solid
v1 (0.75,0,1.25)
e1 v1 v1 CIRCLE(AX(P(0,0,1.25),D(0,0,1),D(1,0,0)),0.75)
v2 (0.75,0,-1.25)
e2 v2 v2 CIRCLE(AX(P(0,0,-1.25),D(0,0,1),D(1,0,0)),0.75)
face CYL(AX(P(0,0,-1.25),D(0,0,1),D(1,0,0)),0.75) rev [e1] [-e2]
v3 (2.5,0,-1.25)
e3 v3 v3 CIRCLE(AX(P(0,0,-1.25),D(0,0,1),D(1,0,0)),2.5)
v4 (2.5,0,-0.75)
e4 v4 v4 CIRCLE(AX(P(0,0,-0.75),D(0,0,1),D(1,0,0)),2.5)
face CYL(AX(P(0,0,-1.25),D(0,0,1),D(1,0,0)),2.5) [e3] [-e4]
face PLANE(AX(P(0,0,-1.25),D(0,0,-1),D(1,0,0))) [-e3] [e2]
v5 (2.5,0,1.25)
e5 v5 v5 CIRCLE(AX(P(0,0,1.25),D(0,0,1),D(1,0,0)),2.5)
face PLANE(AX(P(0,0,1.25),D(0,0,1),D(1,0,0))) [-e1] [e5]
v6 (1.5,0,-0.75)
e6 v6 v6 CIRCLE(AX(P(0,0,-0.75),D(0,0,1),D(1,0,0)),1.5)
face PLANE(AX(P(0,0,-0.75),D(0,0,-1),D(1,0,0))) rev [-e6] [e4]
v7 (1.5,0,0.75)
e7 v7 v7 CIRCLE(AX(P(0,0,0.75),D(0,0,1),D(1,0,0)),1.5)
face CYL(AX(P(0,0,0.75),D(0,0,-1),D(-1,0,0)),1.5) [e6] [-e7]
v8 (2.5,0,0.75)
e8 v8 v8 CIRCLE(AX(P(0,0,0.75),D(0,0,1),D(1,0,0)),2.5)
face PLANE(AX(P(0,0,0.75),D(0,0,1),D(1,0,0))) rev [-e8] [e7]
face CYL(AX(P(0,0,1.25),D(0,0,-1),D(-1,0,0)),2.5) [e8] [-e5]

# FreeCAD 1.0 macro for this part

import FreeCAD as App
import Part
import Sketcher
from FreeCAD import Vector

doc = App.newDocument("Part")
body = doc.addObject("PartDesign::Body", "Body")

sketch1 = body.newObject("Sketcher::SketchObject", "Sketch")
sketch1.AttachmentSupport = (doc.getObject("XY_Plane"), [""])
sketch1.MapMode = "FlatFace"
sketch1.addGeometry(Part.Circle(Vector(0, 0, 0), Vector(0, 0, 1), 1.5), False)
sketch1.addConstraint(Sketcher.Constraint("Coincident", 0, 3, -1, 1))
sketch1.addConstraint(Sketcher.Constraint("Diameter", 0, 3.0))
pad1 = body.newObject("PartDesign::Pad", "Pad")
pad1.Profile = sketch1
pad1.Length = 1.5
pad1.Midplane = True

sketch2 = body.newObject("Sketcher::SketchObject", "Sketch001")
sketch2.AttachmentSupport = (doc.getObject("XY_Plane"), [""])
sketch2.MapMode = "FlatFace"
sketch2.AttachmentOffset = App.Placement(Vector(0, 0, 0.75), App.Rotation())
sketch2.addGeometry(Part.Circle(Vector(0, 0, 0), Vector(0, 0, 1), 2.5), False)
sketch2.addConstraint(Sketcher.Constraint("Coincident", 0, 3, -1, 1))
sketch2.addConstraint(Sketcher.Constraint("Diameter", 0, 5.0))
pad2 = body.newObject("PartDesign::Pad", "Pad001")
pad2.Profile = sketch2
pad2.Length = 0.5
doc.recompute()

mirrored = body.newObject("PartDesign::Mirrored", "Mirrored")
mirrored.Originals = [pad2]
mirrored.MirrorPlane = (doc.getObject("XY_Plane"), [""])
body.Tip = mirrored

sketch3 = body.newObject("Sketcher::SketchObject", "Sketch002")
sketch3.AttachmentSupport = (doc.getObject("XY_Plane"), [""])
sketch3.MapMode = "FlatFace"
sketch3.AttachmentOffset = App.Placement(Vector(0, 0, 1.25), App.Rotation())
sketch3.addGeometry(Part.Circle(Vector(0, 0, 0), Vector(0, 0, 1), 0.8), False)
sketch3.addConstraint(Sketcher.Constraint("Coincident", 0, 3, -1, 1))
sketch3.addConstraint(Sketcher.Constraint("Diameter", 0, 1.5))
pocket1 = body.newObject("PartDesign::Pocket", "Pocket")
pocket1.Profile = sketch3
pocket1.Type = "ThroughAll"

doc.recompute()
